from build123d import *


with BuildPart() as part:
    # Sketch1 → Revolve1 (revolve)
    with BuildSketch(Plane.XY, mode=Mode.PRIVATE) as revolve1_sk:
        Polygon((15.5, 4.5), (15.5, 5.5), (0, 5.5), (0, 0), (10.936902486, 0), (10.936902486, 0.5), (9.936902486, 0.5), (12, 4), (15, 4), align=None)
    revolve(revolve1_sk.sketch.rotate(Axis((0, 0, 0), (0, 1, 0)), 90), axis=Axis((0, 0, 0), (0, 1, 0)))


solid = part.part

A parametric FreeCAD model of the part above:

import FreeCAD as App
import Part
import Sketcher
Q = App.Units.Quantity


def add_polygon(sketch, points):
    """Adds a closed chain of lines whose ends are joined by coincident constraints."""
    first, n = sketch.GeometryCount, len(points)
    for a, b in zip(points, points[1:] + points[:1]):
        sketch.addGeometry(Part.LineSegment(App.Vector(*a, 0), App.Vector(*b, 0)), False)
    for i in range(n):
        sketch.addConstraint(Sketcher.Constraint("Coincident", first + i, 2, first + (i + 1) % n, 1))

doc = App.newDocument("Part")
body = doc.addObject("PartDesign::Body", "Body")

sketch1 = doc.addObject("Sketcher::SketchObject", "Sketch")
body.addObject(sketch1)
sketch1.AttachmentSupport = (doc.XY_Plane, [""])
sketch1.MapMode = "FlatFace"
add_polygon(sketch1, [(15.5, 4.5), (15.5, 5.5), (0, 5.5), (0, 0), (10.9, 0), (10.9, 0.5), (9.9, 0.5), (12, 4), (15, 4)])
sketch1.addConstraint([
    Sketcher.Constraint("Vertical", 0),
    Sketcher.Constraint("Horizontal", 1),
    Sketcher.Constraint("Vertical", 2),
    Sketcher.Constraint("Horizontal", 3),
    Sketcher.Constraint("Vertical", 4),
    Sketcher.Constraint("Horizontal", 5),
    Sketcher.Constraint("Horizontal", 7),
    Sketcher.Constraint("Coincident", 2, 2, -1, 1),
    Sketcher.Constraint("Equal", 5, 0),
    Sketcher.Constraint("DistanceX", 5, 2, 5, 1, 1.0),
    Sketcher.Constraint("DistanceX", 7, 1, 7, 2, 3.0),
    Sketcher.Constraint("Angle", 8, Q("45 deg")),
    Sketcher.Constraint("DistanceX", 1, 2, 1, 1, 15.5),
    Sketcher.Constraint("DistanceY", 2, 2, 2, 1, 5.5),
    Sketcher.Constraint("DistanceY", 4, 1, 4, 2, 0.5),
    Sketcher.Constraint("DistanceX", -1, 1, 6, 2, 12.0),
    Sketcher.Constraint("DistanceX", 3, 1, 3, 2, 10.936902),
])
revolution = doc.addObject("PartDesign::Revolution", "Revolution")
body.addObject(revolution)
revolution.Profile = sketch1
revolution.ReferenceAxis = (sketch1, ["V_Axis"])
revolution.Angle = 360

doc.recompute()
